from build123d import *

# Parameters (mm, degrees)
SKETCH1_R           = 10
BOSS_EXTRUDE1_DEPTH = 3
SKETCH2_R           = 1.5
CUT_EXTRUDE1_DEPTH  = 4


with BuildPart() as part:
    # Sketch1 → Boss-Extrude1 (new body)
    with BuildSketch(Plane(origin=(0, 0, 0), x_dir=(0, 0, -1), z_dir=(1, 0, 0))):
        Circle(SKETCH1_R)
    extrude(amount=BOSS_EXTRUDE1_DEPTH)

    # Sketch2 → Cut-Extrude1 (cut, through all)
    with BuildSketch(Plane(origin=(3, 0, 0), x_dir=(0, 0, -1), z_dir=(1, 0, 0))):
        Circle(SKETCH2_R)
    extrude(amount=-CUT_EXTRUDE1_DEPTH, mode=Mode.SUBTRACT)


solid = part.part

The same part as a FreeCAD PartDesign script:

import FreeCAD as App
import Part
import Sketcher

V = App.Vector
Q = App.Units.Quantity

doc = App.newDocument("Part")
params = doc.addObject("Spreadsheet::Sheet", "Params")
for row, (alias, value) in enumerate([
    ("sketch1_diameter", "20 mm"),
    ("pad1_length", "3 mm"),
    ("sketch2_diameter", "3 mm"),
], start=1):
    params.set(f"A{row}", alias)
    params.set(f"B{row}", "=" + value)
    params.setAlias(f"B{row}", alias)

body = doc.addObject("PartDesign::Body", "Body")

# Sketch on YZ plane
sketch1 = doc.addObject("Sketcher::SketchObject", "Sketch")
body.addObject(sketch1)
sketch1.AttachmentSupport = (doc.YZ_Plane, [""])
sketch1.MapMode = "FlatFace"
sketch1.addGeometry(Part.Circle(V(0, 0, 0), V(0, 0, 1), 10), False)
sketch1.addConstraint(Sketcher.Constraint("Coincident", 0, 3, -1, 1))
sketch1.addConstraint(Sketcher.Constraint("Diameter", 0, Q("20 mm")))
sketch1.setExpression("Constraints[1]", "Params.sketch1_diameter")
pad1 = doc.addObject("PartDesign::Pad", "Pad")
body.addObject(pad1)
pad1.Profile = sketch1
pad1.setExpression("Length", "Params.pad1_length")

# Sketch on YZ plane
sketch2 = doc.addObject("Sketcher::SketchObject", "Sketch001")
body.addObject(sketch2)
sketch2.AttachmentSupport = (doc.YZ_Plane, [""])
sketch2.MapMode = "FlatFace"
sketch2.AttachmentOffset = App.Placement(V(0, 0, 3), App.Rotation())
sketch2.addGeometry(Part.Circle(V(0, 0, 0), V(0, 0, 1), 1.5), False)
sketch2.addConstraint(Sketcher.Constraint("Coincident", 0, 3, -1, 1))
sketch2.addConstraint(Sketcher.Constraint("Diameter", 0, Q("3 mm")))
sketch2.setExpression("Constraints[1]", "Params.sketch2_diameter")
pocket1 = doc.addObject("PartDesign::Pocket", "Pocket")
body.addObject(pocket1)
pocket1.Profile = sketch2
pocket1.Type = "ThroughAll"

doc.recompute()
